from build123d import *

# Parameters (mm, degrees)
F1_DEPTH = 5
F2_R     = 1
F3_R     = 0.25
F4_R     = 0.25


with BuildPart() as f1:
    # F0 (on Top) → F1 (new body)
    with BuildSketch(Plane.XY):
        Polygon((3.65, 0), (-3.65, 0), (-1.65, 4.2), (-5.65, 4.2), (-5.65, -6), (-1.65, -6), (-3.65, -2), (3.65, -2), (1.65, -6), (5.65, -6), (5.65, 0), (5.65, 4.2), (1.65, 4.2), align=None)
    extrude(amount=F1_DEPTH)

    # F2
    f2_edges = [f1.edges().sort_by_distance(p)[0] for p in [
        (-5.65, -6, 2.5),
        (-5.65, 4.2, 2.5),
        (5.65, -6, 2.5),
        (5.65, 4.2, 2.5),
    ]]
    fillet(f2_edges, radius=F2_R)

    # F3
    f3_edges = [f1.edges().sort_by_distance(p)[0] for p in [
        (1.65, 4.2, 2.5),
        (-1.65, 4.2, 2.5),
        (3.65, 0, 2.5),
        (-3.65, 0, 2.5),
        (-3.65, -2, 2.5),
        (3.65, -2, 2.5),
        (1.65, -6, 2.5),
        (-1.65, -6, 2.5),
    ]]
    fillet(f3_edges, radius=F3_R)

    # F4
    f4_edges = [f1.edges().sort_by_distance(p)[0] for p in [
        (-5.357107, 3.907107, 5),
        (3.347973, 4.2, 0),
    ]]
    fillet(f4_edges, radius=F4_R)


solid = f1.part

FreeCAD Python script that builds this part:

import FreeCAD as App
import Part
import Sketcher
Q = App.Units.Quantity


def edges_at(feature, points):
    """Names of the edges that pass closest to the given points."""
    edges = feature.Shape.Edges
    near = lambda p: min(range(len(edges)), key=lambda i: edges[i].distToShape(Part.Vertex(*p))[0])
    return sorted({f"Edge{near(p) + 1}" for p in points})

doc = App.newDocument("Part")
params = doc.addObject("Spreadsheet::Sheet", "Params")
for row, (alias, value) in enumerate([
    ("sketch1_width", "4 mm"),
    ("sketch1_width2", "7.3 mm"),
    ("sketch1_height", "10.2 mm"),
    ("pad1_length", "5 mm"),
    ("fillet_radius", "1 mm"),
    ("fillet2_radius", "0.25 mm"),
    ("fillet3_radius", "0.25 mm"),
], start=1):
    params.set(f"A{row}", alias)
    params.set(f"B{row}", "=" + value)
    params.setAlias(f"B{row}", alias)

body = doc.addObject("PartDesign::Body", "Body")

# Sketch on XY plane
sketch1 = body.newObject("Sketcher::SketchObject", "Sketch")
sketch1.AttachmentSupport = (doc.getObject("XY_Plane"), [""])
sketch1.MapMode = "FlatFace"
sketch1.addGeometry(Part.LineSegment(App.Vector(3.65, 0, 0), App.Vector(-3.65, 0, 0)), False)
sketch1.addGeometry(Part.LineSegment(App.Vector(-3.65, 0, 0), App.Vector(-1.65, 4.2, 0)), False)
sketch1.addGeometry(Part.LineSegment(App.Vector(-1.65, 4.2, 0), App.Vector(-5.65, 4.2, 0)), False)
sketch1.addGeometry(Part.LineSegment(App.Vector(-5.65, 4.2, 0), App.Vector(-5.65, -6, 0)), False)
sketch1.addGeometry(Part.LineSegment(App.Vector(-5.65, -6, 0), App.Vector(-1.65, -6, 0)), False)
sketch1.addGeometry(Part.LineSegment(App.Vector(-1.65, -6, 0), App.Vector(-3.65, -2, 0)), False)
sketch1.addGeometry(Part.LineSegment(App.Vector(-3.65, -2, 0), App.Vector(3.65, -2, 0)), False)
sketch1.addGeometry(Part.LineSegment(App.Vector(3.65, -2, 0), App.Vector(1.65, -6, 0)), False)
sketch1.addGeometry(Part.LineSegment(App.Vector(1.65, -6, 0), App.Vector(5.65, -6, 0)), False)
sketch1.addGeometry(Part.LineSegment(App.Vector(5.65, -6, 0), App.Vector(5.65, 4.2, 0)), False)
sketch1.addGeometry(Part.LineSegment(App.Vector(5.65, 4.2, 0), App.Vector(1.65, 4.2, 0)), False)
sketch1.addGeometry(Part.LineSegment(App.Vector(1.65, 4.2, 0), App.Vector(3.65, 0, 0)), False)
sketch1.addConstraint(Sketcher.Constraint("Coincident", 0, 2, 1, 1))
sketch1.addConstraint(Sketcher.Constraint("Coincident", 1, 2, 2, 1))
sketch1.addConstraint(Sketcher.Constraint("Coincident", 2, 2, 3, 1))
sketch1.addConstraint(Sketcher.Constraint("Coincident", 3, 2, 4, 1))
sketch1.addConstraint(Sketcher.Constraint("Coincident", 4, 2, 5, 1))
sketch1.addConstraint(Sketcher.Constraint("Coincident", 5, 2, 6, 1))
sketch1.addConstraint(Sketcher.Constraint("Coincident", 6, 2, 7, 1))
sketch1.addConstraint(Sketcher.Constraint("Coincident", 7, 2, 8, 1))
sketch1.addConstraint(Sketcher.Constraint("Coincident", 8, 2, 9, 1))
sketch1.addConstraint(Sketcher.Constraint("Coincident", 9, 2, 10, 1))
sketch1.addConstraint(Sketcher.Constraint("Coincident", 10, 2, 11, 1))
sketch1.addConstraint(Sketcher.Constraint("Coincident", 11, 2, 0, 1))
sketch1.addConstraint(Sketcher.Constraint("Horizontal", 0))
sketch1.addConstraint(Sketcher.Constraint("Horizontal", 2))
sketch1.addConstraint(Sketcher.Constraint("Vertical", 3))
sketch1.addConstraint(Sketcher.Constraint("Horizontal", 4))
sketch1.addConstraint(Sketcher.Constraint("Horizontal", 6))
sketch1.addConstraint(Sketcher.Constraint("Horizontal", 8))
sketch1.addConstraint(Sketcher.Constraint("Vertical", 9))
sketch1.addConstraint(Sketcher.Constraint("Horizontal", 10))
sketch1.addConstraint(Sketcher.Constraint("Symmetric", 0, 2, 11, 2, -1, 1))
sketch1.addConstraint(Sketcher.Constraint("Symmetric", 4, 2, 7, 2, -2))
sketch1.addConstraint(Sketcher.Constraint("Symmetric", 2, 2, 9, 2, -2))
sketch1.addConstraint(Sketcher.Constraint("Vertical", 1, 2, 4, 2))
sketch1.addConstraint(Sketcher.Constraint("Vertical", 0, 2, 5, 2))
sketch1.addConstraint(Sketcher.Constraint("Vertical", 7, 2, 10, 2))
sketch1.addConstraint(Sketcher.Constraint("Vertical", 6, 2, 11, 2))
sketch1.addConstraint(Sketcher.Constraint("DistanceX", 2, 2, 2, 1, Q("4 mm")))
sketch1.addConstraint(Sketcher.Constraint("DistanceX", 0, 2, 0, 1, Q("7.3 mm")))
sketch1.addConstraint(Sketcher.Constraint("DistanceY", 3, 2, 3, 1, Q("10.2 mm")))
sketch1.addConstraint(Sketcher.Constraint("DistanceY", 3, 2, -1, 1, Q("6 mm")))
sketch1.addConstraint(Sketcher.Constraint("DistanceY", 5, 2, -1, 1, Q("2 mm")))
sketch1.addConstraint(Sketcher.Constraint("DistanceX", 0, 2, 1, 2, Q("2 mm")))
sketch1.setExpression("Constraints[27]", "Params.sketch1_width")
sketch1.setExpression("Constraints[28]", "Params.sketch1_width2")
sketch1.setExpression("Constraints[29]", "Params.sketch1_height")
pad1 = body.newObject("PartDesign::Pad", "Pad")
pad1.Profile = sketch1
pad1.setExpression("Length", "Params.pad1_length")
doc.recompute()

fillet = body.newObject("PartDesign::Fillet", "Fillet")
fillet.Base = (pad1, edges_at(pad1, [
    (-5.65, -6, 2.5),
    (-5.65, 4.2, 2.5),
    (5.65, -6, 2.5),
    (5.65, 4.2, 2.5),
]))
fillet.setExpression("Radius", "Params.fillet_radius")
doc.recompute()

fillet2 = body.newObject("PartDesign::Fillet", "Fillet001")
fillet2.Base = (fillet, edges_at(fillet, [
    (1.65, 4.2, 2.5),
    (-1.65, 4.2, 2.5),
    (3.65, 0, 2.5),
    (-3.65, 0, 2.5),
    (-3.65, -2, 2.5),
    (3.65, -2, 2.5),
    (1.65, -6, 2.5),
    (-1.65, -6, 2.5),
]))
fillet2.setExpression("Radius", "Params.fillet2_radius")
doc.recompute()

fillet3 = body.newObject("PartDesign::Fillet", "Fillet002")
fillet3.Base = (fillet2, edges_at(fillet2, [(-5.357, 3.907, 5), (3.348, 4.2, 0)]))
fillet3.setExpression("Radius", "Params.fillet3_radius")

doc.recompute()
